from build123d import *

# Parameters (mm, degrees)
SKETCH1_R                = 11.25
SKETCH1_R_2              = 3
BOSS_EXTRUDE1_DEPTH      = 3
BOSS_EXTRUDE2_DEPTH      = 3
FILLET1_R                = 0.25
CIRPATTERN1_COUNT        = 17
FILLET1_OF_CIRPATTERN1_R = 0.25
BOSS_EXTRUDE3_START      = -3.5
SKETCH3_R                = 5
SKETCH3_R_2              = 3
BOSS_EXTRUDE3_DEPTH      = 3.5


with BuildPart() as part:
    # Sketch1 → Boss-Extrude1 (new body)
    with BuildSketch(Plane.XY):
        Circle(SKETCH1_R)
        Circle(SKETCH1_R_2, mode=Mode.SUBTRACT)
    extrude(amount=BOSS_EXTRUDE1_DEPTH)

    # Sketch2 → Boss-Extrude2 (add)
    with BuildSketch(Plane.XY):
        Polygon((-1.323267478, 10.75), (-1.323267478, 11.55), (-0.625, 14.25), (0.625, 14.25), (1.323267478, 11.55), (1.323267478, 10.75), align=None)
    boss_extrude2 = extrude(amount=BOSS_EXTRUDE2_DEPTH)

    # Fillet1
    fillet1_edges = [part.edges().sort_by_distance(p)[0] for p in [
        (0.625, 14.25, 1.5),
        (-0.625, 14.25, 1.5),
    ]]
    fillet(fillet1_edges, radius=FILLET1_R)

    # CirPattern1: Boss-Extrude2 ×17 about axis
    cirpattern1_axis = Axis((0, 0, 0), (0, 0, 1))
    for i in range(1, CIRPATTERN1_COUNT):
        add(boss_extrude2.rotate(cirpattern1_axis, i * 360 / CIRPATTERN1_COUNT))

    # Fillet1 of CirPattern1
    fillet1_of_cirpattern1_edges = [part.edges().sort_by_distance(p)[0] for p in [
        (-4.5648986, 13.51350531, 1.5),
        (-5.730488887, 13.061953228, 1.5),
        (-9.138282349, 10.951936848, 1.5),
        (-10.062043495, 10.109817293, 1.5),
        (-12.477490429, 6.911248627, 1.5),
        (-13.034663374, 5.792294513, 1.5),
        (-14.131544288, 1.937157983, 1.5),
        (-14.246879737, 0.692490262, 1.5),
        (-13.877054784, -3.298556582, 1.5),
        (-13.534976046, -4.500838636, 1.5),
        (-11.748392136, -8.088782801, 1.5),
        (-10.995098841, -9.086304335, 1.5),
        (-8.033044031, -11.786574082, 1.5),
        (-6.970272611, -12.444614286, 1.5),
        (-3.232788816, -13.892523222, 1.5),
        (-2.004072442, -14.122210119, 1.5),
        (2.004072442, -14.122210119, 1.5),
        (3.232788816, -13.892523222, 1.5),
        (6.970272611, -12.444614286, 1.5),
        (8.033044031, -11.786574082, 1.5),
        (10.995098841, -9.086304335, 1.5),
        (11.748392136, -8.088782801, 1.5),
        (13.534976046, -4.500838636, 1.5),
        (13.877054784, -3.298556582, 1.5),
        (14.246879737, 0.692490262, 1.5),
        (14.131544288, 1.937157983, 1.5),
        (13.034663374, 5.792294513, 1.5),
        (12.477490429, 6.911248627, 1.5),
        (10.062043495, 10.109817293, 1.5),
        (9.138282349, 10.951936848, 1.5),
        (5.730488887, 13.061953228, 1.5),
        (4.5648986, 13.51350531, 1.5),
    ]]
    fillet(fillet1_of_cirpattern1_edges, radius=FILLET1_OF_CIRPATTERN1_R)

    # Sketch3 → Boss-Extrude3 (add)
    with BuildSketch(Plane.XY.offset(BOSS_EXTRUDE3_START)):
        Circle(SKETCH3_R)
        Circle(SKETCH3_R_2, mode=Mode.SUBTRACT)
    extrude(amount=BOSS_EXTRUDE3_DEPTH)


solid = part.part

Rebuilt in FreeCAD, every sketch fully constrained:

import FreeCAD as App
import Part
import Sketcher
from FreeCAD import Vector
Q = App.Units.Quantity


def edges_at(feature, points):
    """Names of the edges that pass closest to the given points."""
    edges = feature.Shape.Edges
    near = lambda p: min(range(len(edges)), key=lambda i: edges[i].distToShape(Part.Vertex(*p))[0])
    return sorted({f"Edge{near(p) + 1}" for p in points})

doc = App.newDocument("Part")
body = doc.addObject("PartDesign::Body", "Body")

# Sketch on XY plane
sketch1 = doc.addObject("Sketcher::SketchObject", "Sketch")
body.addObject(sketch1)
sketch1.AttachmentSupport = (doc.XY_Plane, [""])
sketch1.MapMode = "FlatFace"
sketch1.addGeometry([
    Part.Circle(Vector(0, 0, 0), Vector(0, 0, 1), 11.2),
    Part.Circle(Vector(0, 0, 0), Vector(0, 0, 1), 3),
], False)
sketch1.addConstraint([
    Sketcher.Constraint("Coincident", 0, 3, -1, 1),
    Sketcher.Constraint("Coincident", 1, 3, -1, 1),
    Sketcher.Constraint("Diameter", 1, Q("6 mm")),
    Sketcher.Constraint("Diameter", 0, Q("22.5 mm")),
])
pad1 = doc.addObject("PartDesign::Pad", "Pad")
body.addObject(pad1)
pad1.Profile = sketch1
pad1.Length = 3

# Sketch on XY plane
sketch2 = doc.addObject("Sketcher::SketchObject", "Sketch001")
body.addObject(sketch2)
sketch2.AttachmentSupport = (doc.XY_Plane, [""])
sketch2.MapMode = "FlatFace"
sketch2.addGeometry([
    Part.LineSegment(Vector(-1.3, 11.6, 0), Vector(-1.3, 10.8, 0)),  # 0
    Part.LineSegment(Vector(-1.3, 10.8, 0), Vector(1.3, 10.8, 0)),  # 1
    Part.LineSegment(Vector(1.3, 10.8, 0), Vector(1.3, 11.6, 0)),  # 2
    Part.LineSegment(Vector(1.3, 11.6, 0), Vector(0.6, 14.2, 0)),  # 3
    Part.LineSegment(Vector(0.6, 14.2, 0), Vector(-0.6, 14.2, 0)),  # 4
    Part.LineSegment(Vector(-0.6, 14.2, 0), Vector(-1.3, 11.6, 0)),  # 5
], False)
sketch2.addConstraint([
    Sketcher.Constraint("Coincident", 0, 2, 1, 1),
    Sketcher.Constraint("Coincident", 1, 2, 2, 1),
    Sketcher.Constraint("Coincident", 2, 2, 3, 1),
    Sketcher.Constraint("Coincident", 3, 2, 4, 1),
    Sketcher.Constraint("Coincident", 4, 2, 5, 1),
    Sketcher.Constraint("Coincident", 5, 2, 0, 1),
    Sketcher.Constraint("Vertical", 0),
    Sketcher.Constraint("Horizontal", 1),
    Sketcher.Constraint("Vertical", 2),
    Sketcher.Constraint("Horizontal", 4),
    Sketcher.Constraint("Symmetric", 2, 2, 5, 2, -2),
    Sketcher.Constraint("Equal", 3, 5),
    Sketcher.Constraint("DistanceY", 0, 2, 0, 1, Q("0.8 mm")),
    Sketcher.Constraint("Angle", 3, Q("104.5 deg")),
    Sketcher.Constraint("DistanceX", 4, 2, 4, 1, Q("1.25 mm")),
    Sketcher.Constraint("DistanceY", 2, 2, 3, 2, Q("2.7 mm")),
    Sketcher.Constraint("DistanceY", -1, 1, 0, 2, Q("10.75 mm")),
])
pad2 = doc.addObject("PartDesign::Pad", "Pad001")
body.addObject(pad2)
pad2.Profile = sketch2
pad2.Length = 3
doc.recompute()

fillet = doc.addObject("PartDesign::Fillet", "Fillet")
body.addObject(fillet)
fillet.Base = (pad2, edges_at(pad2, [(0.625, 14.25, 1.5), (-0.625, 14.25, 1.5)]))
fillet.Radius = 0.25
doc.recompute()

polarpattern = doc.addObject("PartDesign::PolarPattern", "PolarPattern")
body.addObject(polarpattern)
polarpattern.Originals = [pad2]
polarpattern.Axis = (doc.Z_Axis, [""])
polarpattern.Angle = 360
polarpattern.Occurrences = 17
body.Tip = polarpattern
doc.recompute()

fillet2 = doc.addObject("PartDesign::Fillet", "Fillet001")
body.addObject(fillet2)
fillet2.Base = (polarpattern, edges_at(polarpattern, [
    (-4.565, 13.514, 1.5),
    (-5.73, 13.062, 1.5),
    (-9.138, 10.952, 1.5),
    (-10.062, 10.11, 1.5),
    (-12.477, 6.911, 1.5),
    (-13.035, 5.792, 1.5),
    (-14.132, 1.937, 1.5),
    (-14.247, 0.692, 1.5),
    (-13.877, -3.299, 1.5),
    (-13.535, -4.501, 1.5),
    (-11.748, -8.089, 1.5),
    (-10.995, -9.086, 1.5),
    (-8.033, -11.787, 1.5),
    (-6.97, -12.445, 1.5),
    (-3.233, -13.893, 1.5),
    (-2.004, -14.122, 1.5),
    (2.004, -14.122, 1.5),
    (3.233, -13.893, 1.5),
    (6.97, -12.445, 1.5),
    (8.033, -11.787, 1.5),
    (10.995, -9.086, 1.5),
    (11.748, -8.089, 1.5),
    (13.535, -4.501, 1.5),
    (13.877, -3.299, 1.5),
    (14.247, 0.692, 1.5),
    (14.132, 1.937, 1.5),
    (13.035, 5.792, 1.5),
    (12.477, 6.911, 1.5),
    (10.062, 10.11, 1.5),
    (9.138, 10.952, 1.5),
    (5.73, 13.062, 1.5),
    (4.565, 13.514, 1.5),
]))
fillet2.Radius = 0.25

# Sketch on XY plane
sketch3 = doc.addObject("Sketcher::SketchObject", "Sketch002")
body.addObject(sketch3)
sketch3.AttachmentSupport = (doc.XY_Plane, [""])
sketch3.MapMode = "FlatFace"
sketch3.AttachmentOffset = App.Placement(Vector(0, 0, -3.5), App.Rotation())
sketch3.addGeometry([
    Part.Circle(Vector(0, 0, 0), Vector(0, 0, 1), 5),
    Part.Circle(Vector(0, 0, 0), Vector(0, 0, 1), 3),
], False)
sketch3.addConstraint([
    Sketcher.Constraint("Coincident", 0, 3, -1, 1),
    Sketcher.Constraint("Coincident", 1, 3, -1, 1),
    Sketcher.Constraint("Diameter", 0, Q("10 mm")),
    Sketcher.Constraint("Diameter", 1, Q("6 mm")),
])
pad3 = doc.addObject("PartDesign::Pad", "Pad002")
body.addObject(pad3)
pad3.Profile = sketch3
pad3.Length = 3.5

doc.recompute()
